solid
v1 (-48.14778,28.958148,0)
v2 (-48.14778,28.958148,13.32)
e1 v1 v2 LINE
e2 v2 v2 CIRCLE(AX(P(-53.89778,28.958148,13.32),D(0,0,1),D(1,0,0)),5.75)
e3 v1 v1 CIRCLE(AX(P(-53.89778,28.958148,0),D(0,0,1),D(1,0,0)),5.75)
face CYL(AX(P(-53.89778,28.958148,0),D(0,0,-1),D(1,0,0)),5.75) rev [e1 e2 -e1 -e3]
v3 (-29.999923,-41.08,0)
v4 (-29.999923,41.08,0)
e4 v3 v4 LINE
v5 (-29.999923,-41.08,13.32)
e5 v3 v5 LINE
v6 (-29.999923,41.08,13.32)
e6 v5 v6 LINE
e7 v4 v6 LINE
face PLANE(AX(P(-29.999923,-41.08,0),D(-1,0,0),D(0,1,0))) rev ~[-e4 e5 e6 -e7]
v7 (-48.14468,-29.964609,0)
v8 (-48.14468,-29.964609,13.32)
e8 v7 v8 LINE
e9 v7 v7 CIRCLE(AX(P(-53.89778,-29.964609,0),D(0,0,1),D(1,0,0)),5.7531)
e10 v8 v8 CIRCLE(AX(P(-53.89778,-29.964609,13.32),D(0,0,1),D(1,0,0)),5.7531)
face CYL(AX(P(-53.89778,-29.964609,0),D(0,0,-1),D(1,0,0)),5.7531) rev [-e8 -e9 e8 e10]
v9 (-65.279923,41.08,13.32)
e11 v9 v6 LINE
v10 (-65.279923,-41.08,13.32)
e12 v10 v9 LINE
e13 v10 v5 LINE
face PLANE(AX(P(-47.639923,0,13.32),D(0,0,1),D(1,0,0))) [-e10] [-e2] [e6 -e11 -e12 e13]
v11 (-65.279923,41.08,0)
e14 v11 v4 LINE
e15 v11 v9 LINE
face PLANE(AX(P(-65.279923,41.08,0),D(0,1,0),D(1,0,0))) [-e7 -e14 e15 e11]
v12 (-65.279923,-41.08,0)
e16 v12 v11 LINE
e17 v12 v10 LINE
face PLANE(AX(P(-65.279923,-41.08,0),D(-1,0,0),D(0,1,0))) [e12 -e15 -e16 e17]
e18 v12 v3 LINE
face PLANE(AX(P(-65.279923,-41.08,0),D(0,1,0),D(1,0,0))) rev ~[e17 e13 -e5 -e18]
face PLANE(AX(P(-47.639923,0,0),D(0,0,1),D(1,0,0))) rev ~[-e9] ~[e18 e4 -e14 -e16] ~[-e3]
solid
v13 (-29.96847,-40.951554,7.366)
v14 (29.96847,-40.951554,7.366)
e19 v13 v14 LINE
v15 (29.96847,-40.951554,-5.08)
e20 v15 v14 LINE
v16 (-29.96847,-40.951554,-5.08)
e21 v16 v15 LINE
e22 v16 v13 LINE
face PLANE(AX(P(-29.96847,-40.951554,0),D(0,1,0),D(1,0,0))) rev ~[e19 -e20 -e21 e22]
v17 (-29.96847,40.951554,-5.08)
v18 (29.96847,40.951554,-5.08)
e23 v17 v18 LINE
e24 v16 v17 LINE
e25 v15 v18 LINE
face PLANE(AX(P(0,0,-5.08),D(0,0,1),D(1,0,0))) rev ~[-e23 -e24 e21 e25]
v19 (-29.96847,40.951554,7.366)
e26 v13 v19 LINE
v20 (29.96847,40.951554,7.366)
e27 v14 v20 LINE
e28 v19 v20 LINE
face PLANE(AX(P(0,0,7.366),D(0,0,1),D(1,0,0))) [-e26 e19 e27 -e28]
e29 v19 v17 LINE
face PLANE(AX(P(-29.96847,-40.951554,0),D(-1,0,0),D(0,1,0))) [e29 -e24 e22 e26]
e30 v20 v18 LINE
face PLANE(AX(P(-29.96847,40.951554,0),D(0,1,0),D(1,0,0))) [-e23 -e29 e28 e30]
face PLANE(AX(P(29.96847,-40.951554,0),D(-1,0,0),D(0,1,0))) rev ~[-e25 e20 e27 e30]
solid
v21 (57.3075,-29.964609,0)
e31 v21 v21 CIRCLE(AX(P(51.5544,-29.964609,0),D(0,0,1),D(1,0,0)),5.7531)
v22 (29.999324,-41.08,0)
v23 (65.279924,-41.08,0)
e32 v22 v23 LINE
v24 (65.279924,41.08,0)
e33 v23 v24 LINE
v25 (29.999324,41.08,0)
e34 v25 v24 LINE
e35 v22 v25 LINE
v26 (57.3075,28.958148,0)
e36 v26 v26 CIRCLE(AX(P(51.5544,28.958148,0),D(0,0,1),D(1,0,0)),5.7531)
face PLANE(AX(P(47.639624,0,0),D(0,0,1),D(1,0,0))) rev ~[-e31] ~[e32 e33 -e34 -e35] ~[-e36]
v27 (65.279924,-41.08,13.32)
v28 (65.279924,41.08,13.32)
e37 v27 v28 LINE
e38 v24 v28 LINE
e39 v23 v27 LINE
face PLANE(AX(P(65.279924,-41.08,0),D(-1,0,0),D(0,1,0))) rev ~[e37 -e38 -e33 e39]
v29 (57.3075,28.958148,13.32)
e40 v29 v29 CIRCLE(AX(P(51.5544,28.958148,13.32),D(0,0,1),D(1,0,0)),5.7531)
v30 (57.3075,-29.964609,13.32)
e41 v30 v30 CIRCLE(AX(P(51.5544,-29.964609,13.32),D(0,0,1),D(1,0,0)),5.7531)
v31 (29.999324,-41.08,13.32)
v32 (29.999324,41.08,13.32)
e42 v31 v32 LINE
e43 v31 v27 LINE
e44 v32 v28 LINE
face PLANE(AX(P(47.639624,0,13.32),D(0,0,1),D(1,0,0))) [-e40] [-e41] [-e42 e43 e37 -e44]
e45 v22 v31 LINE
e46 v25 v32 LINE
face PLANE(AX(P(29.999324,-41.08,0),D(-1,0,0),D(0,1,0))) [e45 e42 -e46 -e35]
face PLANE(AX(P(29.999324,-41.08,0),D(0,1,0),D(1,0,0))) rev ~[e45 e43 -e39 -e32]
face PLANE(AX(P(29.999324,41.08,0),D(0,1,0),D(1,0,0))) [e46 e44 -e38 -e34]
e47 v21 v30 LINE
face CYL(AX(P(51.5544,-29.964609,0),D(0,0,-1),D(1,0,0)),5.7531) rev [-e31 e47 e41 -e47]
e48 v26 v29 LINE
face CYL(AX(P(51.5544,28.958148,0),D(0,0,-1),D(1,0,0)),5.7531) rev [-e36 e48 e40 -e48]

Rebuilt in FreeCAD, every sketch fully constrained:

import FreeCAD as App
import Part
import Sketcher
Q = App.Units.Quantity

doc = App.newDocument("Part")
body = doc.addObject("PartDesign::Body", "Body")
body.AllowCompound = True

# Sketch on XY plane
sketch1 = doc.addObject("Sketcher::SketchObject", "Sketch")
body.addObject(sketch1)
sketch1.AttachmentSupport = (doc.XY_Plane, [""])
sketch1.MapMode = "FlatFace"
sketch1.addGeometry(Part.LineSegment(App.Vector(-65.279923, 41.08, 0), App.Vector(-65.279923, -41.08, 0)), False)
sketch1.addGeometry(Part.LineSegment(App.Vector(-65.279923, -41.08, 0), App.Vector(-29.999923, -41.08, 0)), False)
sketch1.addGeometry(Part.LineSegment(App.Vector(-29.999923, -41.08, 0), App.Vector(-29.999923, 41.08, 0)), False)
sketch1.addGeometry(Part.LineSegment(App.Vector(-29.999923, 41.08, 0), App.Vector(-65.279923, 41.08, 0)), False)
sketch1.addGeometry(Part.Circle(App.Vector(-53.89778, -29.964609, 0), App.Vector(0, 0, 1), 5.7531), False)
sketch1.addGeometry(Part.Circle(App.Vector(-53.89778, 28.958148, 0), App.Vector(0, 0, 1), 5.75), False)
sketch1.addGeometry(Part.LineSegment(App.Vector(29.999324, 41.08, 0), App.Vector(29.999324, -41.08, 0)), False)
sketch1.addGeometry(Part.LineSegment(App.Vector(29.999324, -41.08, 0), App.Vector(65.279924, -41.08, 0)), False)
sketch1.addGeometry(Part.LineSegment(App.Vector(65.279924, -41.08, 0), App.Vector(65.279924, 41.08, 0)), False)
sketch1.addGeometry(Part.LineSegment(App.Vector(65.279924, 41.08, 0), App.Vector(29.999324, 41.08, 0)), False)
sketch1.addGeometry(Part.Circle(App.Vector(51.5544, -29.964609, 0), App.Vector(0, 0, 1), 5.7531), False)
sketch1.addGeometry(Part.Circle(App.Vector(51.5544, 28.958148, 0), App.Vector(0, 0, 1), 5.7531), False)
sketch1.addConstraint(Sketcher.Constraint("Coincident", 0, 2, 1, 1))
sketch1.addConstraint(Sketcher.Constraint("Coincident", 1, 2, 2, 1))
sketch1.addConstraint(Sketcher.Constraint("Coincident", 2, 2, 3, 1))
sketch1.addConstraint(Sketcher.Constraint("Coincident", 3, 2, 0, 1))
sketch1.addConstraint(Sketcher.Constraint("Coincident", 6, 2, 7, 1))
sketch1.addConstraint(Sketcher.Constraint("Coincident", 7, 2, 8, 1))
sketch1.addConstraint(Sketcher.Constraint("Coincident", 8, 2, 9, 1))
sketch1.addConstraint(Sketcher.Constraint("Coincident", 9, 2, 6, 1))
sketch1.addConstraint(Sketcher.Constraint("Vertical", 0))
sketch1.addConstraint(Sketcher.Constraint("Horizontal", 1))
sketch1.addConstraint(Sketcher.Constraint("Vertical", 2))
sketch1.addConstraint(Sketcher.Constraint("Horizontal", 3))
sketch1.addConstraint(Sketcher.Constraint("Vertical", 6))
sketch1.addConstraint(Sketcher.Constraint("Horizontal", 7))
sketch1.addConstraint(Sketcher.Constraint("Vertical", 8))
sketch1.addConstraint(Sketcher.Constraint("Horizontal", 9))
sketch1.addConstraint(Sketcher.Constraint("Equal", 4, 10))
sketch1.addConstraint(Sketcher.Constraint("Equal", 10, 11))
sketch1.addConstraint(Sketcher.Constraint("Symmetric", 3, 2, 7, 2, -1, 1))
sketch1.addConstraint(Sketcher.Constraint("Horizontal", 4, 3, 10, 3))
sketch1.addConstraint(Sketcher.Constraint("Horizontal", 5, 3, 11, 3))
sketch1.addConstraint(Sketcher.Constraint("Horizontal", 1, 2, 6, 2))
sketch1.addConstraint(Sketcher.Constraint("Horizontal", 3, 2, 8, 2))
sketch1.addConstraint(Sketcher.Constraint("Vertical", 4, 3, 5, 3))
sketch1.addConstraint(Sketcher.Constraint("Vertical", 10, 3, 11, 3))
sketch1.addConstraint(Sketcher.Constraint("Diameter", 4, Q("0.453 in")))
sketch1.addConstraint(Sketcher.Constraint("Diameter", 5, Q("11.5 mm")))
sketch1.addConstraint(Sketcher.Constraint("DistanceX", 7, 1, 7, 2, Q("1.389 in")))
sketch1.addConstraint(Sketcher.Constraint("DistanceX", 1, 1, 1, 2, Q("35.280001 mm")))
sketch1.addConstraint(Sketcher.Constraint("DistanceY", 0, 2, 0, 1, Q("82.16 mm")))
sketch1.addConstraint(Sketcher.Constraint("DistanceX", 1, 2, 10, 3, Q("3.2108001 in")))
sketch1.addConstraint(Sketcher.Constraint("DistanceX", -1, 1, 10, 3, Q("51.5544 mm")))
sketch1.addConstraint(Sketcher.Constraint("DistanceX", 4, 3, -1, 1, Q("53.89778 mm")))
sketch1.addConstraint(Sketcher.Constraint("DistanceY", 4, 3, -1, 1, Q("29.964609 mm")))
sketch1.addConstraint(Sketcher.Constraint("DistanceY", -1, 1, 5, 3, Q("28.958148 mm")))
pad1 = doc.addObject("PartDesign::Pad", "Pad")
body.addObject(pad1)
pad1.Profile = sketch1
pad1.Length = 13.32
body2 = doc.addObject("PartDesign::Body", "Body001")

# Sketch on XY plane
sketch2 = doc.addObject("Sketcher::SketchObject", "Sketch001")
body2.addObject(sketch2)
sketch2.AttachmentSupport = (doc.getObject("XY_Plane001"), [""])
sketch2.MapMode = "FlatFace"
sketch2.addGeometry(Part.LineSegment(App.Vector(-29.96847, 40.951554, 0), App.Vector(-29.96847, -40.951554, 0)), False)
sketch2.addGeometry(Part.LineSegment(App.Vector(-29.96847, -40.951554, 0), App.Vector(29.96847, -40.951554, 0)), False)
sketch2.addGeometry(Part.LineSegment(App.Vector(29.96847, -40.951554, 0), App.Vector(29.96847, 40.951554, 0)), False)
sketch2.addGeometry(Part.LineSegment(App.Vector(29.96847, 40.951554, 0), App.Vector(-29.96847, 40.951554, 0)), False)
sketch2.addConstraint(Sketcher.Constraint("Coincident", 0, 2, 1, 1))
sketch2.addConstraint(Sketcher.Constraint("Coincident", 1, 2, 2, 1))
sketch2.addConstraint(Sketcher.Constraint("Coincident", 2, 2, 3, 1))
sketch2.addConstraint(Sketcher.Constraint("Coincident", 3, 2, 0, 1))
sketch2.addConstraint(Sketcher.Constraint("Vertical", 0))
sketch2.addConstraint(Sketcher.Constraint("Horizontal", 1))
sketch2.addConstraint(Sketcher.Constraint("Vertical", 2))
sketch2.addConstraint(Sketcher.Constraint("Horizontal", 3))
sketch2.addConstraint(Sketcher.Constraint("Symmetric", 0, 2, 2, 2, -1, 1))
sketch2.addConstraint(Sketcher.Constraint("DistanceX", 1, 1, 1, 2, Q("59.93694 mm")))
sketch2.addConstraint(Sketcher.Constraint("DistanceY", 0, 2, 0, 1, Q("81.903108 mm")))
pad2 = doc.addObject("PartDesign::Pad", "Pad001")
body2.addObject(pad2)
pad2.Profile = sketch2
pad2.Length = Q("0.2 in")
pad2.Reversed = True

# Sketch on XY plane
sketch3 = doc.addObject("Sketcher::SketchObject", "Sketch002")
body2.addObject(sketch3)
sketch3.AttachmentSupport = (doc.getObject("XY_Plane001"), [""])
sketch3.MapMode = "FlatFace"
sketch3.addGeometry(Part.LineSegment(App.Vector(-29.96847, 40.951554, 0), App.Vector(-29.96847, -40.951554, 0)), False)
sketch3.addGeometry(Part.LineSegment(App.Vector(-29.96847, -40.951554, 0), App.Vector(29.96847, -40.951554, 0)), False)
sketch3.addGeometry(Part.LineSegment(App.Vector(29.96847, -40.951554, 0), App.Vector(29.96847, 40.951554, 0)), False)
sketch3.addGeometry(Part.LineSegment(App.Vector(29.96847, 40.951554, 0), App.Vector(-29.96847, 40.951554, 0)), False)
sketch3.addConstraint(Sketcher.Constraint("Coincident", 0, 2, 1, 1))
sketch3.addConstraint(Sketcher.Constraint("Coincident", 1, 2, 2, 1))
sketch3.addConstraint(Sketcher.Constraint("Coincident", 2, 2, 3, 1))
sketch3.addConstraint(Sketcher.Constraint("Coincident", 3, 2, 0, 1))
sketch3.addConstraint(Sketcher.Constraint("Vertical", 0))
sketch3.addConstraint(Sketcher.Constraint("Horizontal", 1))
sketch3.addConstraint(Sketcher.Constraint("Vertical", 2))
sketch3.addConstraint(Sketcher.Constraint("Horizontal", 3))
sketch3.addConstraint(Sketcher.Constraint("Symmetric", 0, 2, 2, 2, -1, 1))
sketch3.addConstraint(Sketcher.Constraint("DistanceX", 1, 1, 1, 2, Q("59.93694 mm")))
sketch3.addConstraint(Sketcher.Constraint("DistanceY", 0, 2, 0, 1, Q("81.903108 mm")))
pad3 = doc.addObject("PartDesign::Pad", "Pad002")
body2.addObject(pad3)
pad3.Profile = sketch3
pad3.Length = Q("0.29 in")

doc.recompute()
